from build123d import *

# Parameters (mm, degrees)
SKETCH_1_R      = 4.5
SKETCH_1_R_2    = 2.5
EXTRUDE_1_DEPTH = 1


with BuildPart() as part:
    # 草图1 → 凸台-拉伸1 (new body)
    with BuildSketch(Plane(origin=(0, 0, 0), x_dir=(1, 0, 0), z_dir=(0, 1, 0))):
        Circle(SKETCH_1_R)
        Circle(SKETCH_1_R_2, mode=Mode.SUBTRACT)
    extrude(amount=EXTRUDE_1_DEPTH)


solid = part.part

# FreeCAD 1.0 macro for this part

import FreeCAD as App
import Part
import Sketcher
from FreeCAD import Vector
Q = App.Units.Quantity

doc = App.newDocument("Part")
body = doc.addObject("PartDesign::Body", "Body")

# Sketch on XZ plane
sketch1 = body.newObject("Sketcher::SketchObject", "Sketch")
sketch1.AttachmentSupport = (doc.getObject("XZ_Plane"), [""])
sketch1.MapMode = "FlatFace"
sketch1.addGeometry([
    Part.Circle(Vector(0, 0, 0), Vector(0, 0, 1), 4.5),
    Part.Circle(Vector(0, 0, 0), Vector(0, 0, 1), 2.5),
], False)
sketch1.addConstraint([
    Sketcher.Constraint("Coincident", 0, 3, -1, 1),
    Sketcher.Constraint("Coincident", 1, 3, -1, 1),
    Sketcher.Constraint("Diameter", 0, Q("9 mm")),
    Sketcher.Constraint("Diameter", 1, Q("5 mm")),
])
pad1 = body.newObject("PartDesign::Pad", "Pad")
pad1.Profile = sketch1
pad1.Length = 1
pad1.Reversed = True

doc.recompute()
